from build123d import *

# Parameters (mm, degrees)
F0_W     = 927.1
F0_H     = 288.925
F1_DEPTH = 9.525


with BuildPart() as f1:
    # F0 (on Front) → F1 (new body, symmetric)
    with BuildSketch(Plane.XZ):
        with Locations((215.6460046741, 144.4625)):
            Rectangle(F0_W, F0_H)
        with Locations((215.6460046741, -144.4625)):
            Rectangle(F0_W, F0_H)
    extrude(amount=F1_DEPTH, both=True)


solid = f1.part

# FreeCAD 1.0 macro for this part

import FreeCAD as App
import Part
import Sketcher
Q = App.Units.Quantity

doc = App.newDocument("Part")
body = doc.addObject("PartDesign::Body", "Body")

# Sketch on XZ plane
sketch1 = body.newObject("Sketcher::SketchObject", "Sketch")
sketch1.AttachmentSupport = (doc.getObject("XZ_Plane"), [""])
sketch1.MapMode = "FlatFace"
sketch1.addGeometry(Part.LineSegment(App.Vector(-248, 289, 0), App.Vector(-248, -289, 0)), False)
sketch1.addGeometry(Part.LineSegment(App.Vector(-248, -289, 0), App.Vector(679, -289, 0)), False)
sketch1.addGeometry(Part.LineSegment(App.Vector(679, -289, 0), App.Vector(679, 289, 0)), False)
sketch1.addGeometry(Part.LineSegment(App.Vector(679, 289, 0), App.Vector(-248, 289, 0)), False)
sketch1.addConstraint(Sketcher.Constraint("Coincident", 0, 2, 1, 1))
sketch1.addConstraint(Sketcher.Constraint("Coincident", 1, 2, 2, 1))
sketch1.addConstraint(Sketcher.Constraint("Coincident", 2, 2, 3, 1))
sketch1.addConstraint(Sketcher.Constraint("Coincident", 3, 2, 0, 1))
sketch1.addConstraint(Sketcher.Constraint("Vertical", 0))
sketch1.addConstraint(Sketcher.Constraint("Horizontal", 1))
sketch1.addConstraint(Sketcher.Constraint("Vertical", 2))
sketch1.addConstraint(Sketcher.Constraint("Horizontal", 3))
sketch1.addConstraint(Sketcher.Constraint("DistanceX", 1, 1, 1, 2, Q("36.5 in")))
sketch1.addConstraint(Sketcher.Constraint("DistanceY", 0, 2, 0, 1, Q("22.75 in")))
sketch1.addConstraint(Sketcher.Constraint("DistanceX", 0, 2, -1, 1, Q("9.7599998 in")))
sketch1.addConstraint(Sketcher.Constraint("DistanceY", 0, 2, -1, 1, Q("11.375 in")))
pad1 = body.newObject("PartDesign::Pad", "Pad")
pad1.Profile = sketch1
pad1.Length = Q("0.75 in")
pad1.Midplane = True

doc.recompute()
